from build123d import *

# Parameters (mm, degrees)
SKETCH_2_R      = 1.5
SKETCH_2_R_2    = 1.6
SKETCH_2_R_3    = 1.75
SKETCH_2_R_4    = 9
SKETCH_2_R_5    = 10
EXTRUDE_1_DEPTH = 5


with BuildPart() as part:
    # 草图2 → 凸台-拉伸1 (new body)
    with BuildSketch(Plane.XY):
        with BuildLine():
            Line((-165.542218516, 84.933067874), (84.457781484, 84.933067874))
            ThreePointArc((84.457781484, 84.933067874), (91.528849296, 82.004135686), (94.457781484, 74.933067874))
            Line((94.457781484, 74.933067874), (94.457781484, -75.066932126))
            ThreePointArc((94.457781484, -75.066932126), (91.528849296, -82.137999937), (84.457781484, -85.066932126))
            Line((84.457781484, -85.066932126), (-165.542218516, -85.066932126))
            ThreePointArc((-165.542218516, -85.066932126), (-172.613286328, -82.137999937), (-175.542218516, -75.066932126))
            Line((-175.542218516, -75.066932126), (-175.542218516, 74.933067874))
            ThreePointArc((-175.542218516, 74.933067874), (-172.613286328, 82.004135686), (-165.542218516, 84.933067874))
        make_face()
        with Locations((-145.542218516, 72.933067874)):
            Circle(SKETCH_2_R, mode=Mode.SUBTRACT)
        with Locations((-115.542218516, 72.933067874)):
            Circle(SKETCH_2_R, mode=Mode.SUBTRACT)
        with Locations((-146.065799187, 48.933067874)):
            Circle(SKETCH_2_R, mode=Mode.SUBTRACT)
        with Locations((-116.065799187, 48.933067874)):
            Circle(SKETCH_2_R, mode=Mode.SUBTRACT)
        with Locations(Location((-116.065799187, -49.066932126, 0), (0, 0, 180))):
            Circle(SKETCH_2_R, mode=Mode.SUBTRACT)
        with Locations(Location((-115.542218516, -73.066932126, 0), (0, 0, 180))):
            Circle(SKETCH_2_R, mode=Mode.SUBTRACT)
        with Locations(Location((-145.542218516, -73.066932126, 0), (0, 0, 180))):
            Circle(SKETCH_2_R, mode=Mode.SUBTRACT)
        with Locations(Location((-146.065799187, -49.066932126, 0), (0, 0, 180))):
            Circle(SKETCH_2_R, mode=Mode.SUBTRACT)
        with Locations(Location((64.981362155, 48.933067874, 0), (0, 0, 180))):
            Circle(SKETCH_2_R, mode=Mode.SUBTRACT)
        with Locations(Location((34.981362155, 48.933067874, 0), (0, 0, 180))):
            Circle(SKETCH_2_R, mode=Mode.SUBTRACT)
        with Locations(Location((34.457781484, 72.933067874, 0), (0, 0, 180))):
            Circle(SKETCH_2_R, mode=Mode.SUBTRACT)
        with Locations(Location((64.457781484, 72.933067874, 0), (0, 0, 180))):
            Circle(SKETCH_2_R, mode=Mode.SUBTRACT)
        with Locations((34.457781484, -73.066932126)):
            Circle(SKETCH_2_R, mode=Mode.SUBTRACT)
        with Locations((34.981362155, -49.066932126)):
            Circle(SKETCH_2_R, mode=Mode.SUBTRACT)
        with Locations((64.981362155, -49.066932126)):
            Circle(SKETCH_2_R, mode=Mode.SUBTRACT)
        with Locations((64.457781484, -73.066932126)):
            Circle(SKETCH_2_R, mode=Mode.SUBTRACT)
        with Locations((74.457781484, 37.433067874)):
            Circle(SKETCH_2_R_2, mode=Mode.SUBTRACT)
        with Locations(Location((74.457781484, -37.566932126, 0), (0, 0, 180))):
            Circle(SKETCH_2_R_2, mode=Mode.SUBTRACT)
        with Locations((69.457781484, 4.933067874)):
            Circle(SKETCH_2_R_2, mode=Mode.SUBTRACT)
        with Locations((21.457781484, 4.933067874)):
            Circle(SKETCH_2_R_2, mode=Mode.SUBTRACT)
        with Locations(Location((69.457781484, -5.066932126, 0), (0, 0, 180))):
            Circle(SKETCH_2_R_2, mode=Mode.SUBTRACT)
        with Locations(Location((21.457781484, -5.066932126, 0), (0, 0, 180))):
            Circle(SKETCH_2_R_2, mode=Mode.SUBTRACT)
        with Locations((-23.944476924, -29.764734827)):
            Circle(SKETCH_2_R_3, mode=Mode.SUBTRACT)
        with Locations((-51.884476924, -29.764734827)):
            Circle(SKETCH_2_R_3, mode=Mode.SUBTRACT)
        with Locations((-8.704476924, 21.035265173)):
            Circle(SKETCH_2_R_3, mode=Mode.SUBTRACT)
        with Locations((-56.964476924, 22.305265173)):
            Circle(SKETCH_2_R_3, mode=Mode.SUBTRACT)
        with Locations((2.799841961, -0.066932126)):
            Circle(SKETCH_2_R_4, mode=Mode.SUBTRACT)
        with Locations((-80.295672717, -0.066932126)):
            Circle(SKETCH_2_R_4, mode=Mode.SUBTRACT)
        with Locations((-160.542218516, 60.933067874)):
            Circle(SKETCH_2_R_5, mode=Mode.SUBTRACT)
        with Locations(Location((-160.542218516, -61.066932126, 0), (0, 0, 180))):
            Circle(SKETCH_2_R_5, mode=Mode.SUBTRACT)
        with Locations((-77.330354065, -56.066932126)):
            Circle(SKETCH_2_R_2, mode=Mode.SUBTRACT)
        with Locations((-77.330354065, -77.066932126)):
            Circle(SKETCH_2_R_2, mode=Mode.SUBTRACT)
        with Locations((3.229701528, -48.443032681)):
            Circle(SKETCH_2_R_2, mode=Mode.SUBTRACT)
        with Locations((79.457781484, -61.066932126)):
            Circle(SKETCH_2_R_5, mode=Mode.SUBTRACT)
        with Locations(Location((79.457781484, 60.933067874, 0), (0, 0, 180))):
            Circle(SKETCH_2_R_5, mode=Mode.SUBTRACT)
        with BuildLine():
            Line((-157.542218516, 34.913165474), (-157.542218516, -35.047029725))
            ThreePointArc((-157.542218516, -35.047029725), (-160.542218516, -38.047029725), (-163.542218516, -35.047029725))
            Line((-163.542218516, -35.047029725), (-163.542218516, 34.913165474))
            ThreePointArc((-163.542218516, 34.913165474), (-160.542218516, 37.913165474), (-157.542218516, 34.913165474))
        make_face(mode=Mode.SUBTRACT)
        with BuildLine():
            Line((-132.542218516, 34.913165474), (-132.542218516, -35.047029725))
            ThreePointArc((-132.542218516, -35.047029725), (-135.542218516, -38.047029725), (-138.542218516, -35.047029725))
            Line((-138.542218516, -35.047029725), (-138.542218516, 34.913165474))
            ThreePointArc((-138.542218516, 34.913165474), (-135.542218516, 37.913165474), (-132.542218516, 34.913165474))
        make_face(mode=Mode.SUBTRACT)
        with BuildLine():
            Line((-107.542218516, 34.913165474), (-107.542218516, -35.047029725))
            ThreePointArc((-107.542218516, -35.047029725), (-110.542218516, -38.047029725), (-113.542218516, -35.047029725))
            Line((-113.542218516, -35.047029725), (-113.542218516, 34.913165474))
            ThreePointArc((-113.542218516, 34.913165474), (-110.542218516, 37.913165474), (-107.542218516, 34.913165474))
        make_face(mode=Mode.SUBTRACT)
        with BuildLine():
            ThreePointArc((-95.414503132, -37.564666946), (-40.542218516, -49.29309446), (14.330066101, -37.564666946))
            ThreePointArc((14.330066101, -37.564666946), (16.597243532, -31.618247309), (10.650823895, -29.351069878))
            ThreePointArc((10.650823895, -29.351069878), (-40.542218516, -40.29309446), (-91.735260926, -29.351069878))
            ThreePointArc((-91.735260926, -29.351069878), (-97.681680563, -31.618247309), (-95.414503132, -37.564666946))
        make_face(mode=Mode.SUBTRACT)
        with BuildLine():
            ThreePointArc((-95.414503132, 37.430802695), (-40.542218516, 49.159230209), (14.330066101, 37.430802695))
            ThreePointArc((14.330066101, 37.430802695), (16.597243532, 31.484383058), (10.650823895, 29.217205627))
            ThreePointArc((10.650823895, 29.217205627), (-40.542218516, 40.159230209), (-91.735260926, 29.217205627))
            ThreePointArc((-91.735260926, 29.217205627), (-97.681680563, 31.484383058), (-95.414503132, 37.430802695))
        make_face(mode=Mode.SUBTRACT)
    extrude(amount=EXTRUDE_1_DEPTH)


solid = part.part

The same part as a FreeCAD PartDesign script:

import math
import FreeCAD as App
import Part
import Sketcher

V = App.Vector
Q = App.Units.Quantity

doc = App.newDocument("Part")
params = doc.addObject("Spreadsheet::Sheet", "Params")
for row, (alias, value) in enumerate([
    ("sketch1_diameter", "3 mm"),
    ("sketch1_diameter2", "20 mm"),
    ("sketch1_diameter3", "18 mm"),
    ("sketch1_radius", "3 mm"),
    ("sketch1_diameter4", "3.2 mm"),
    ("pad1_length", "5 mm"),
], start=1):
    params.set(f"A{row}", alias)
    params.set(f"B{row}", "=" + value)
    params.setAlias(f"B{row}", alias)

body = doc.addObject("PartDesign::Body", "Body")

# Sketch on XY plane
sketch1 = body.newObject("Sketcher::SketchObject", "Sketch")
sketch1.AttachmentSupport = (doc.getObject("XY_Plane"), [""])
sketch1.MapMode = "FlatFace"
sketch1.addGeometry(Part.LineSegment(V(84.5, 84.9, 0), V(-165.5, 84.9, 0)), False)
sketch1.addGeometry(Part.ArcOfCircle(Part.Circle(V(-165.5, 74.9, 0), V(0, 0, 1), 10), math.radians(90), math.radians(180)), False)
sketch1.addGeometry(Part.LineSegment(V(-175.5, 74.9, 0), V(-175.5, -75.1, 0)), False)
sketch1.addGeometry(Part.ArcOfCircle(Part.Circle(V(-165.5, -75.1, 0), V(0, 0, 1), 10), math.radians(-180), math.radians(-90)), False)
sketch1.addGeometry(Part.LineSegment(V(-165.5, -85.1, 0), V(84.5, -85.1, 0)), False)
sketch1.addGeometry(Part.ArcOfCircle(Part.Circle(V(84.5, -75.1, 0), V(0, 0, 1), 10), math.radians(-90), math.radians(0)), False)
sketch1.addGeometry(Part.LineSegment(V(94.5, -75.1, 0), V(94.5, 74.9, 0)), False)
sketch1.addGeometry(Part.ArcOfCircle(Part.Circle(V(84.5, 74.9, 0), V(0, 0, 1), 10), math.radians(0), math.radians(90)), False)
sketch1.addGeometry(Part.Circle(V(64.5, -73.1, 0), V(0, 0, 1), 1.5), False)
sketch1.addGeometry(Part.Circle(V(79.5, -61.1, 0), V(0, 0, 1), 10), False)
sketch1.addGeometry(Part.Circle(V(34.5, -73.1, 0), V(0, 0, 1), 1.5), False)
sketch1.addGeometry(Part.Circle(V(65, -49.1, 0), V(0, 0, 1), 1.5), False)
sketch1.addGeometry(Part.Circle(V(35, -49.1, 0), V(0, 0, 1), 1.5), False)
sketch1.addGeometry(Part.Circle(V(3.2, -48.4, 0), V(0, 0, 1), 1.6), False)
sketch1.addGeometry(Part.Circle(V(74.5, -37.6, 0), V(0, 0, 1), 1.6), False)
sketch1.addGeometry(Part.Circle(V(69.5, -5.1, 0), V(0, 0, 1), 1.6), False)
sketch1.addGeometry(Part.ArcOfCircle(Part.Circle(V(-93.6, -33.5, 0), V(0, 0, 1), 4.5), math.radians(66), math.radians(246)), False)
sketch1.addGeometry(Part.ArcOfCircle(Part.Circle(V(-40.5, 84.9, 0), V(0, 0, 1), 125.2), math.radians(-114), math.radians(-66)), False)
sketch1.addGeometry(Part.ArcOfCircle(Part.Circle(V(12.5, -33.5, 0), V(0, 0, 1), 4.5), math.radians(-66), math.radians(114)), False)
sketch1.addGeometry(Part.ArcOfCircle(Part.Circle(V(-40.5, 84.9, 0), V(0, 0, 1), 134.2), math.radians(-114), math.radians(-66)), False)
sketch1.addGeometry(Part.Circle(V(-23.9, -29.8, 0), V(0, 0, 1), 1.8), False)
sketch1.addGeometry(Part.Circle(V(21.5, -5.1, 0), V(0, 0, 1), 1.6), False)
sketch1.addGeometry(Part.Circle(V(-77.3, -77.1, 0), V(0, 0, 1), 1.6), False)
sketch1.addGeometry(Part.Circle(V(-77.3, -56.1, 0), V(0, 0, 1), 1.6), False)
sketch1.addGeometry(Part.Circle(V(-115.5, -73.1, 0), V(0, 0, 1), 1.5), False)
sketch1.addGeometry(Part.Circle(V(-145.5, -73.1, 0), V(0, 0, 1), 1.5), False)
sketch1.addGeometry(Part.Circle(V(-160.5, -61.1, 0), V(0, 0, 1), 10), False)
sketch1.addGeometry(Part.Circle(V(-116.1, -49.1, 0), V(0, 0, 1), 1.5), False)
sketch1.addGeometry(Part.Circle(V(-146.1, -49.1, 0), V(0, 0, 1), 1.5), False)
sketch1.addGeometry(Part.Circle(V(-51.9, -29.8, 0), V(0, 0, 1), 1.8), False)
sketch1.addGeometry(Part.Circle(V(69.5, 4.9, 0), V(0, 0, 1), 1.6), False)
sketch1.addGeometry(Part.Circle(V(21.5, 4.9, 0), V(0, 0, 1), 1.6), False)
sketch1.addGeometry(Part.Circle(V(2.8, -0.1, 0), V(0, 0, 1), 9), False)
sketch1.addGeometry(Part.Circle(V(-8.7, 21, 0), V(0, 0, 1), 1.8), False)
sketch1.addGeometry(Part.Circle(V(74.5, 37.4, 0), V(0, 0, 1), 1.6), False)
sketch1.addGeometry(Part.Circle(V(65, 48.9, 0), V(0, 0, 1), 1.5), False)
sketch1.addGeometry(Part.Circle(V(35, 48.9, 0), V(0, 0, 1), 1.5), False)
sketch1.addGeometry(Part.Circle(V(79.5, 60.9, 0), V(0, 0, 1), 10), False)
sketch1.addGeometry(Part.Circle(V(64.5, 72.9, 0), V(0, 0, 1), 1.5), False)
sketch1.addGeometry(Part.Circle(V(34.5, 72.9, 0), V(0, 0, 1), 1.5), False)
sketch1.addGeometry(Part.ArcOfCircle(Part.Circle(V(-40.5, -85.1, 0), V(0, 0, 1), 134.2), math.radians(66), math.radians(114)), False)
sketch1.addGeometry(Part.ArcOfCircle(Part.Circle(V(12.5, 33.3, 0), V(0, 0, 1), 4.5), math.radians(-114), math.radians(66)), False)
sketch1.addGeometry(Part.ArcOfCircle(Part.Circle(V(-40.5, -85.1, 0), V(0, 0, 1), 125.2), math.radians(66), math.radians(114)), False)
sketch1.addGeometry(Part.ArcOfCircle(Part.Circle(V(-93.6, 33.3, 0), V(0, 0, 1), 4.5), math.radians(114), math.radians(294)), False)
sketch1.addGeometry(Part.Circle(V(-80.3, -0.1, 0), V(0, 0, 1), 9), False)
sketch1.addGeometry(Part.Circle(V(-57, 22.3, 0), V(0, 0, 1), 1.8), False)
sketch1.addGeometry(Part.LineSegment(V(-107.5, 34.9, 0), V(-107.5, -35, 0)), False)
sketch1.addGeometry(Part.ArcOfCircle(Part.Circle(V(-110.5, -35, 0), V(0, 0, 1), 3), math.radians(180), math.radians(360)), False)
sketch1.addGeometry(Part.LineSegment(V(-113.5, -35, 0), V(-113.5, 34.9, 0)), False)
sketch1.addGeometry(Part.ArcOfCircle(Part.Circle(V(-110.5, 34.9, 0), V(0, 0, 1), 3), math.radians(0), math.radians(180)), False)
sketch1.addGeometry(Part.LineSegment(V(-132.5, 34.9, 0), V(-132.5, -35, 0)), False)
sketch1.addGeometry(Part.ArcOfCircle(Part.Circle(V(-135.5, -35, 0), V(0, 0, 1), 3), math.radians(180), math.radians(360)), False)
sketch1.addGeometry(Part.LineSegment(V(-138.5, -35, 0), V(-138.5, 34.9, 0)), False)
sketch1.addGeometry(Part.ArcOfCircle(Part.Circle(V(-135.5, 34.9, 0), V(0, 0, 1), 3), math.radians(0), math.radians(180)), False)
sketch1.addGeometry(Part.LineSegment(V(-157.5, 34.9, 0), V(-157.5, -35, 0)), False)
sketch1.addGeometry(Part.ArcOfCircle(Part.Circle(V(-160.5, -35, 0), V(0, 0, 1), 3), math.radians(180), math.radians(360)), False)
sketch1.addGeometry(Part.LineSegment(V(-163.5, -35, 0), V(-163.5, 34.9, 0)), False)
sketch1.addGeometry(Part.ArcOfCircle(Part.Circle(V(-160.5, 34.9, 0), V(0, 0, 1), 3), math.radians(0), math.radians(180)), False)
sketch1.addGeometry(Part.Circle(V(-116.1, 48.9, 0), V(0, 0, 1), 1.5), False)
sketch1.addGeometry(Part.Circle(V(-146.1, 48.9, 0), V(0, 0, 1), 1.5), False)
sketch1.addGeometry(Part.Circle(V(-115.5, 72.9, 0), V(0, 0, 1), 1.5), False)
sketch1.addGeometry(Part.Circle(V(-160.5, 60.9, 0), V(0, 0, 1), 10), False)
sketch1.addGeometry(Part.Circle(V(-145.5, 72.9, 0), V(0, 0, 1), 1.5), False)
sketch1.addConstraint(Sketcher.Constraint("Tangent", 0, 2, 1, 1))
sketch1.addConstraint(Sketcher.Constraint("Tangent", 1, 2, 2, 1))
sketch1.addConstraint(Sketcher.Constraint("Tangent", 2, 2, 3, 1))
sketch1.addConstraint(Sketcher.Constraint("Tangent", 3, 2, 4, 1))
sketch1.addConstraint(Sketcher.Constraint("Tangent", 4, 2, 5, 1))
sketch1.addConstraint(Sketcher.Constraint("Tangent", 5, 2, 6, 1))
sketch1.addConstraint(Sketcher.Constraint("Tangent", 6, 2, 7, 1))
sketch1.addConstraint(Sketcher.Constraint("Tangent", 7, 2, 0, 1))
sketch1.addConstraint(Sketcher.Constraint("Tangent", 16, 1, 17, 1))
sketch1.addConstraint(Sketcher.Constraint("Tangent", 17, 2, 18, 2))
sketch1.addConstraint(Sketcher.Constraint("Tangent", 18, 1, 19, 2))
sketch1.addConstraint(Sketcher.Constraint("Tangent", 19, 1, 16, 2))
sketch1.addConstraint(Sketcher.Constraint("Tangent", 40, 1, 41, 2))
sketch1.addConstraint(Sketcher.Constraint("Tangent", 41, 1, 42, 1))
sketch1.addConstraint(Sketcher.Constraint("Tangent", 42, 2, 43, 2))
sketch1.addConstraint(Sketcher.Constraint("Tangent", 43, 1, 40, 2))
sketch1.addConstraint(Sketcher.Constraint("Tangent", 46, 2, 47, 2))
sketch1.addConstraint(Sketcher.Constraint("Tangent", 47, 1, 48, 1))
sketch1.addConstraint(Sketcher.Constraint("Tangent", 48, 2, 49, 2))
sketch1.addConstraint(Sketcher.Constraint("Tangent", 49, 1, 46, 1))
sketch1.addConstraint(Sketcher.Constraint("Tangent", 50, 2, 51, 2))
sketch1.addConstraint(Sketcher.Constraint("Tangent", 51, 1, 52, 1))
sketch1.addConstraint(Sketcher.Constraint("Tangent", 52, 2, 53, 2))
sketch1.addConstraint(Sketcher.Constraint("Tangent", 53, 1, 50, 1))
sketch1.addConstraint(Sketcher.Constraint("Tangent", 54, 2, 55, 2))
sketch1.addConstraint(Sketcher.Constraint("Tangent", 55, 1, 56, 1))
sketch1.addConstraint(Sketcher.Constraint("Tangent", 56, 2, 57, 2))
sketch1.addConstraint(Sketcher.Constraint("Tangent", 57, 1, 54, 1))
sketch1.addConstraint(Sketcher.Constraint("Horizontal", 0))
sketch1.addConstraint(Sketcher.Constraint("Vertical", 2))
sketch1.addConstraint(Sketcher.Constraint("Horizontal", 4))
sketch1.addConstraint(Sketcher.Constraint("Vertical", 6))
sketch1.addConstraint(Sketcher.Constraint("Vertical", 46))
sketch1.addConstraint(Sketcher.Constraint("Vertical", 48))
sketch1.addConstraint(Sketcher.Constraint("Vertical", 50))
sketch1.addConstraint(Sketcher.Constraint("Vertical", 52))
sketch1.addConstraint(Sketcher.Constraint("Vertical", 54))
sketch1.addConstraint(Sketcher.Constraint("Vertical", 56))
sketch1.addConstraint(Sketcher.Constraint("Coincident", 19, 3, 17, 3))
sketch1.addConstraint(Sketcher.Constraint("Coincident", 42, 3, 40, 3))
sketch1.addConstraint(Sketcher.Constraint("Equal", 1, 3))
sketch1.addConstraint(Sketcher.Constraint("Equal", 3, 5))
sketch1.addConstraint(Sketcher.Constraint("Equal", 5, 7))
sketch1.addConstraint(Sketcher.Constraint("Equal", 7, 9))
sketch1.addConstraint(Sketcher.Constraint("Equal", 8, 10))
sketch1.addConstraint(Sketcher.Constraint("Equal", 10, 11))
sketch1.addConstraint(Sketcher.Constraint("Equal", 11, 12))
sketch1.addConstraint(Sketcher.Constraint("Equal", 13, 14))
sketch1.addConstraint(Sketcher.Constraint("Equal", 14, 15))
sketch1.addConstraint(Sketcher.Constraint("Equal", 15, 21))
sketch1.addConstraint(Sketcher.Constraint("Equal", 21, 22))
sketch1.addConstraint(Sketcher.Constraint("Equal", 22, 23))
sketch1.addConstraint(Sketcher.Constraint("Equal", 12, 24))
sketch1.addConstraint(Sketcher.Constraint("Equal", 24, 25))
sketch1.addConstraint(Sketcher.Constraint("Equal", 9, 26))
sketch1.addConstraint(Sketcher.Constraint("Equal", 25, 27))
sketch1.addConstraint(Sketcher.Constraint("Equal", 27, 28))
sketch1.addConstraint(Sketcher.Constraint("Equal", 20, 29))
sketch1.addConstraint(Sketcher.Constraint("Equal", 23, 30))
sketch1.addConstraint(Sketcher.Constraint("Equal", 30, 31))
sketch1.addConstraint(Sketcher.Constraint("Equal", 29, 33))
sketch1.addConstraint(Sketcher.Constraint("Equal", 31, 34))
sketch1.addConstraint(Sketcher.Constraint("Equal", 28, 35))
sketch1.addConstraint(Sketcher.Constraint("Equal", 35, 36))
sketch1.addConstraint(Sketcher.Constraint("Equal", 26, 37))
sketch1.addConstraint(Sketcher.Constraint("Equal", 36, 38))
sketch1.addConstraint(Sketcher.Constraint("Equal", 38, 39))
sketch1.addConstraint(Sketcher.Constraint("Equal", 19, 40))
sketch1.addConstraint(Sketcher.Constraint("Equal", 18, 41))
sketch1.addConstraint(Sketcher.Constraint("Equal", 32, 44))
sketch1.addConstraint(Sketcher.Constraint("Equal", 33, 45))
sketch1.addConstraint(Sketcher.Constraint("Equal", 49, 51))
sketch1.addConstraint(Sketcher.Constraint("Equal", 53, 55))
sketch1.addConstraint(Sketcher.Constraint("Equal", 39, 58))
sketch1.addConstraint(Sketcher.Constraint("Equal", 58, 59))
sketch1.addConstraint(Sketcher.Constraint("Equal", 59, 60))
sketch1.addConstraint(Sketcher.Constraint("Equal", 37, 61))
sketch1.addConstraint(Sketcher.Constraint("Equal", 60, 62))
sketch1.addConstraint(Sketcher.Constraint("Horizontal", 8, 3, 10, 3))
sketch1.addConstraint(Sketcher.Constraint("Horizontal", 11, 3, 12, 3))
sketch1.addConstraint(Sketcher.Constraint("Horizontal", 16, 3, 18, 3))
sketch1.addConstraint(Sketcher.Constraint("Horizontal", 15, 3, 21, 3))
sketch1.addConstraint(Sketcher.Constraint("Horizontal", 10, 3, 24, 3))
sketch1.addConstraint(Sketcher.Constraint("Horizontal", 24, 3, 25, 3))
sketch1.addConstraint(Sketcher.Constraint("Horizontal", 9, 3, 26, 3))
sketch1.addConstraint(Sketcher.Constraint("Horizontal", 12, 3, 27, 3))
sketch1.addConstraint(Sketcher.Constraint("Horizontal", 27, 3, 28, 3))
sketch1.addConstraint(Sketcher.Constraint("Horizontal", 20, 3, 29, 3))
sketch1.addConstraint(Sketcher.Constraint("Horizontal", 30, 3, 31, 3))
sketch1.addConstraint(Sketcher.Constraint("Horizontal", 35, 3, 36, 3))
sketch1.addConstraint(Sketcher.Constraint("Horizontal", 38, 3, 39, 3))
sketch1.addConstraint(Sketcher.Constraint("Horizontal", 41, 3, 43, 3))
sketch1.addConstraint(Sketcher.Constraint("Horizontal", 32, 3, 44, 3))
sketch1.addConstraint(Sketcher.Constraint("Horizontal", 47, 3, 51, 3))
sketch1.addConstraint(Sketcher.Constraint("Horizontal", 49, 3, 53, 3))
sketch1.addConstraint(Sketcher.Constraint("Horizontal", 51, 3, 55, 3))
sketch1.addConstraint(Sketcher.Constraint("Horizontal", 53, 3, 57, 3))
sketch1.addConstraint(Sketcher.Constraint("Horizontal", 36, 3, 58, 3))
sketch1.addConstraint(Sketcher.Constraint("Horizontal", 58, 3, 59, 3))
sketch1.addConstraint(Sketcher.Constraint("Horizontal", 39, 3, 60, 3))
sketch1.addConstraint(Sketcher.Constraint("Horizontal", 37, 3, 61, 3))
sketch1.addConstraint(Sketcher.Constraint("Horizontal", 60, 3, 62, 3))
sketch1.addConstraint(Sketcher.Constraint("Horizontal", 19, 3, 0, 2))
sketch1.addConstraint(Sketcher.Constraint("Horizontal", 42, 3, 3, 2))
sketch1.addConstraint(Sketcher.Constraint("Vertical", 22, 3, 23, 3))
sketch1.addConstraint(Sketcher.Constraint("Vertical", 15, 3, 30, 3))
sketch1.addConstraint(Sketcher.Constraint("Vertical", 21, 3, 31, 3))
sketch1.addConstraint(Sketcher.Constraint("Vertical", 14, 3, 34, 3))
sketch1.addConstraint(Sketcher.Constraint("Vertical", 11, 3, 35, 3))
sketch1.addConstraint(Sketcher.Constraint("Vertical", 12, 3, 36, 3))
sketch1.addConstraint(Sketcher.Constraint("Vertical", 9, 3, 37, 3))
sketch1.addConstraint(Sketcher.Constraint("Vertical", 8, 3, 38, 3))
sketch1.addConstraint(Sketcher.Constraint("Vertical", 10, 3, 39, 3))
sketch1.addConstraint(Sketcher.Constraint("Vertical", 19, 3, 40, 3))
sketch1.addConstraint(Sketcher.Constraint("Vertical", 18, 3, 41, 3))
sketch1.addConstraint(Sketcher.Constraint("Vertical", 26, 3, 55, 3))
sketch1.addConstraint(Sketcher.Constraint("Vertical", 27, 3, 58, 3))
sketch1.addConstraint(Sketcher.Constraint("Vertical", 28, 3, 59, 3))
sketch1.addConstraint(Sketcher.Constraint("Vertical", 24, 3, 60, 3))
sketch1.addConstraint(Sketcher.Constraint("Vertical", 57, 3, 61, 3))
sketch1.addConstraint(Sketcher.Constraint("Vertical", 25, 3, 62, 3))
sketch1.addConstraint(Sketcher.Constraint("Diameter", 8, Q("3 mm")))
sketch1.addConstraint(Sketcher.Constraint("Diameter", 9, Q("20 mm")))
sketch1.addConstraint(Sketcher.Constraint("Diameter", 32, Q("18 mm")))
sketch1.addConstraint(Sketcher.Constraint("Radius", 47, Q("3 mm")))
sketch1.addConstraint(Sketcher.Constraint("Diameter", 13, Q("3.2 mm")))
sketch1.addConstraint(Sketcher.Constraint("Diameter", 20, Q("3.5 mm")))
sketch1.addConstraint(Sketcher.Constraint("Radius", 16, Q("4.5 mm")))
sketch1.addConstraint(Sketcher.Constraint("DistanceX", 0, 2, 0, 1, Q("250 mm")))
sketch1.addConstraint(Sketcher.Constraint("DistanceY", 2, 2, 2, 1, Q("150 mm")))
sketch1.addConstraint(Sketcher.Constraint("Radius", 17, Q("125.226162 mm")))
sketch1.addConstraint(Sketcher.Constraint("DistanceX", -1, 1, 13, 3, Q("3.229702 mm")))
sketch1.addConstraint(Sketcher.Constraint("DistanceX", 27, 3, -1, 1, Q("116.065799 mm")))
sketch1.addConstraint(Sketcher.Constraint("DistanceX", 28, 3, -1, 1, Q("146.065799 mm")))
sketch1.addConstraint(Sketcher.Constraint("DistanceY", 46, 2, 46, 1, Q("69.960195 mm")))
sketch1.addConstraint(Sketcher.Constraint("DistanceX", 1, 3, -1, 1, Q("165.542219 mm")))
sketch1.addConstraint(Sketcher.Constraint("DistanceX", -1, 1, 8, 3, Q("64.457781 mm")))
sketch1.addConstraint(Sketcher.Constraint("DistanceX", -1, 1, 9, 3, Q("79.457781 mm")))
sketch1.addConstraint(Sketcher.Constraint("DistanceX", -1, 1, 10, 3, Q("34.457781 mm")))
sketch1.addConstraint(Sketcher.Constraint("DistanceX", -1, 1, 14, 3, Q("74.457781 mm")))
sketch1.addConstraint(Sketcher.Constraint("DistanceX", -1, 1, 15, 3, Q("69.457781 mm")))
sketch1.addConstraint(Sketcher.Constraint("DistanceY", 16, 3, -1, 1, Q("33.457868 mm")))
sketch1.addConstraint(Sketcher.Constraint("DistanceX", 17, 3, -1, 1, Q("40.542219 mm")))
sketch1.addConstraint(Sketcher.Constraint("DistanceX", -1, 1, 21, 3, Q("21.457781 mm")))
sketch1.addConstraint(Sketcher.Constraint("DistanceX", 24, 3, -1, 1, Q("115.542219 mm")))
sketch1.addConstraint(Sketcher.Constraint("DistanceX", 25, 3, -1, 1, Q("145.542219 mm")))
sketch1.addConstraint(Sketcher.Constraint("DistanceX", 26, 3, -1, 1, Q("160.542219 mm")))
sketch1.addConstraint(Sketcher.Constraint("DistanceX", -1, 1, 32, 3, Q("2.799842 mm")))
sketch1.addConstraint(Sketcher.Constraint("DistanceX", 47, 3, -1, 1, Q("110.542219 mm")))
sketch1.addConstraint(Sketcher.Constraint("DistanceY", 47, 3, -1, 1, Q("35.04703 mm")))
sketch1.addConstraint(Sketcher.Constraint("DistanceX", 51, 3, -1, 1, Q("135.542219 mm")))
sketch1.addConstraint(Sketcher.Constraint("DistanceX", 16, 1, -1, 1, Q("91.735261 mm")))
sketch1.addConstraint(Sketcher.Constraint("DistanceY", 8, 3, -1, 1, Q("73.066932 mm")))
sketch1.addConstraint(Sketcher.Constraint("DistanceY", 9, 3, -1, 1, Q("61.066932 mm")))
sketch1.addConstraint(Sketcher.Constraint("DistanceX", -1, 1, 11, 3, Q("64.981362 mm")))
sketch1.addConstraint(Sketcher.Constraint("DistanceY", 11, 3, -1, 1, Q("49.066932 mm")))
sketch1.addConstraint(Sketcher.Constraint("DistanceX", -1, 1, 12, 3, Q("34.981362 mm")))
sketch1.addConstraint(Sketcher.Constraint("DistanceY", 13, 3, -1, 1, Q("48.443033 mm")))
sketch1.addConstraint(Sketcher.Constraint("DistanceY", 14, 3, -1, 1, Q("37.566932 mm")))
sketch1.addConstraint(Sketcher.Constraint("DistanceY", 15, 3, -1, 1, Q("5.066932 mm")))
sketch1.addConstraint(Sketcher.Constraint("DistanceX", 20, 3, -1, 1, Q("23.944477 mm")))
sketch1.addConstraint(Sketcher.Constraint("DistanceY", 20, 3, -1, 1, Q("29.764735 mm")))
sketch1.addConstraint(Sketcher.Constraint("DistanceX", 22, 3, -1, 1, Q("77.330354 mm")))
sketch1.addConstraint(Sketcher.Constraint("DistanceY", 22, 3, -1, 1, Q("77.066932 mm")))
sketch1.addConstraint(Sketcher.Constraint("DistanceY", 23, 3, -1, 1, Q("56.066932 mm")))
sketch1.addConstraint(Sketcher.Constraint("DistanceX", 29, 3, -1, 1, Q("51.884477 mm")))
sketch1.addConstraint(Sketcher.Constraint("DistanceY", -1, 1, 30, 3, Q("4.933068 mm")))
sketch1.addConstraint(Sketcher.Constraint("DistanceY", 32, 3, -1, 1, Q("0.066932 mm")))
sketch1.addConstraint(Sketcher.Constraint("DistanceX", 33, 3, -1, 1, Q("8.704477 mm")))
sketch1.addConstraint(Sketcher.Constraint("DistanceY", -1, 1, 33, 3, Q("21.035265 mm")))
sketch1.addConstraint(Sketcher.Constraint("DistanceY", -1, 1, 34, 3, Q("37.433068 mm")))
sketch1.addConstraint(Sketcher.Constraint("DistanceY", -1, 1, 35, 3, Q("48.933068 mm")))
sketch1.addConstraint(Sketcher.Constraint("DistanceY", -1, 1, 37, 3, Q("60.933068 mm")))
sketch1.addConstraint(Sketcher.Constraint("DistanceY", -1, 1, 38, 3, Q("72.933068 mm")))
sketch1.addConstraint(Sketcher.Constraint("DistanceX", 44, 3, -1, 1, Q("80.295673 mm")))
sketch1.addConstraint(Sketcher.Constraint("DistanceX", 45, 3, -1, 1, Q("56.964477 mm")))
sketch1.addConstraint(Sketcher.Constraint("DistanceY", -1, 1, 45, 3, Q("22.305265 mm")))
sketch1.setExpression("Constraints[121]", "Params.sketch1_diameter")
sketch1.setExpression("Constraints[122]", "Params.sketch1_diameter2")
sketch1.setExpression("Constraints[123]", "Params.sketch1_diameter3")
sketch1.setExpression("Constraints[124]", "Params.sketch1_radius")
sketch1.setExpression("Constraints[125]", "Params.sketch1_diameter4")
pad1 = body.newObject("PartDesign::Pad", "Pad")
pad1.Profile = sketch1
pad1.setExpression("Length", "Params.pad1_length")

doc.recompute()
